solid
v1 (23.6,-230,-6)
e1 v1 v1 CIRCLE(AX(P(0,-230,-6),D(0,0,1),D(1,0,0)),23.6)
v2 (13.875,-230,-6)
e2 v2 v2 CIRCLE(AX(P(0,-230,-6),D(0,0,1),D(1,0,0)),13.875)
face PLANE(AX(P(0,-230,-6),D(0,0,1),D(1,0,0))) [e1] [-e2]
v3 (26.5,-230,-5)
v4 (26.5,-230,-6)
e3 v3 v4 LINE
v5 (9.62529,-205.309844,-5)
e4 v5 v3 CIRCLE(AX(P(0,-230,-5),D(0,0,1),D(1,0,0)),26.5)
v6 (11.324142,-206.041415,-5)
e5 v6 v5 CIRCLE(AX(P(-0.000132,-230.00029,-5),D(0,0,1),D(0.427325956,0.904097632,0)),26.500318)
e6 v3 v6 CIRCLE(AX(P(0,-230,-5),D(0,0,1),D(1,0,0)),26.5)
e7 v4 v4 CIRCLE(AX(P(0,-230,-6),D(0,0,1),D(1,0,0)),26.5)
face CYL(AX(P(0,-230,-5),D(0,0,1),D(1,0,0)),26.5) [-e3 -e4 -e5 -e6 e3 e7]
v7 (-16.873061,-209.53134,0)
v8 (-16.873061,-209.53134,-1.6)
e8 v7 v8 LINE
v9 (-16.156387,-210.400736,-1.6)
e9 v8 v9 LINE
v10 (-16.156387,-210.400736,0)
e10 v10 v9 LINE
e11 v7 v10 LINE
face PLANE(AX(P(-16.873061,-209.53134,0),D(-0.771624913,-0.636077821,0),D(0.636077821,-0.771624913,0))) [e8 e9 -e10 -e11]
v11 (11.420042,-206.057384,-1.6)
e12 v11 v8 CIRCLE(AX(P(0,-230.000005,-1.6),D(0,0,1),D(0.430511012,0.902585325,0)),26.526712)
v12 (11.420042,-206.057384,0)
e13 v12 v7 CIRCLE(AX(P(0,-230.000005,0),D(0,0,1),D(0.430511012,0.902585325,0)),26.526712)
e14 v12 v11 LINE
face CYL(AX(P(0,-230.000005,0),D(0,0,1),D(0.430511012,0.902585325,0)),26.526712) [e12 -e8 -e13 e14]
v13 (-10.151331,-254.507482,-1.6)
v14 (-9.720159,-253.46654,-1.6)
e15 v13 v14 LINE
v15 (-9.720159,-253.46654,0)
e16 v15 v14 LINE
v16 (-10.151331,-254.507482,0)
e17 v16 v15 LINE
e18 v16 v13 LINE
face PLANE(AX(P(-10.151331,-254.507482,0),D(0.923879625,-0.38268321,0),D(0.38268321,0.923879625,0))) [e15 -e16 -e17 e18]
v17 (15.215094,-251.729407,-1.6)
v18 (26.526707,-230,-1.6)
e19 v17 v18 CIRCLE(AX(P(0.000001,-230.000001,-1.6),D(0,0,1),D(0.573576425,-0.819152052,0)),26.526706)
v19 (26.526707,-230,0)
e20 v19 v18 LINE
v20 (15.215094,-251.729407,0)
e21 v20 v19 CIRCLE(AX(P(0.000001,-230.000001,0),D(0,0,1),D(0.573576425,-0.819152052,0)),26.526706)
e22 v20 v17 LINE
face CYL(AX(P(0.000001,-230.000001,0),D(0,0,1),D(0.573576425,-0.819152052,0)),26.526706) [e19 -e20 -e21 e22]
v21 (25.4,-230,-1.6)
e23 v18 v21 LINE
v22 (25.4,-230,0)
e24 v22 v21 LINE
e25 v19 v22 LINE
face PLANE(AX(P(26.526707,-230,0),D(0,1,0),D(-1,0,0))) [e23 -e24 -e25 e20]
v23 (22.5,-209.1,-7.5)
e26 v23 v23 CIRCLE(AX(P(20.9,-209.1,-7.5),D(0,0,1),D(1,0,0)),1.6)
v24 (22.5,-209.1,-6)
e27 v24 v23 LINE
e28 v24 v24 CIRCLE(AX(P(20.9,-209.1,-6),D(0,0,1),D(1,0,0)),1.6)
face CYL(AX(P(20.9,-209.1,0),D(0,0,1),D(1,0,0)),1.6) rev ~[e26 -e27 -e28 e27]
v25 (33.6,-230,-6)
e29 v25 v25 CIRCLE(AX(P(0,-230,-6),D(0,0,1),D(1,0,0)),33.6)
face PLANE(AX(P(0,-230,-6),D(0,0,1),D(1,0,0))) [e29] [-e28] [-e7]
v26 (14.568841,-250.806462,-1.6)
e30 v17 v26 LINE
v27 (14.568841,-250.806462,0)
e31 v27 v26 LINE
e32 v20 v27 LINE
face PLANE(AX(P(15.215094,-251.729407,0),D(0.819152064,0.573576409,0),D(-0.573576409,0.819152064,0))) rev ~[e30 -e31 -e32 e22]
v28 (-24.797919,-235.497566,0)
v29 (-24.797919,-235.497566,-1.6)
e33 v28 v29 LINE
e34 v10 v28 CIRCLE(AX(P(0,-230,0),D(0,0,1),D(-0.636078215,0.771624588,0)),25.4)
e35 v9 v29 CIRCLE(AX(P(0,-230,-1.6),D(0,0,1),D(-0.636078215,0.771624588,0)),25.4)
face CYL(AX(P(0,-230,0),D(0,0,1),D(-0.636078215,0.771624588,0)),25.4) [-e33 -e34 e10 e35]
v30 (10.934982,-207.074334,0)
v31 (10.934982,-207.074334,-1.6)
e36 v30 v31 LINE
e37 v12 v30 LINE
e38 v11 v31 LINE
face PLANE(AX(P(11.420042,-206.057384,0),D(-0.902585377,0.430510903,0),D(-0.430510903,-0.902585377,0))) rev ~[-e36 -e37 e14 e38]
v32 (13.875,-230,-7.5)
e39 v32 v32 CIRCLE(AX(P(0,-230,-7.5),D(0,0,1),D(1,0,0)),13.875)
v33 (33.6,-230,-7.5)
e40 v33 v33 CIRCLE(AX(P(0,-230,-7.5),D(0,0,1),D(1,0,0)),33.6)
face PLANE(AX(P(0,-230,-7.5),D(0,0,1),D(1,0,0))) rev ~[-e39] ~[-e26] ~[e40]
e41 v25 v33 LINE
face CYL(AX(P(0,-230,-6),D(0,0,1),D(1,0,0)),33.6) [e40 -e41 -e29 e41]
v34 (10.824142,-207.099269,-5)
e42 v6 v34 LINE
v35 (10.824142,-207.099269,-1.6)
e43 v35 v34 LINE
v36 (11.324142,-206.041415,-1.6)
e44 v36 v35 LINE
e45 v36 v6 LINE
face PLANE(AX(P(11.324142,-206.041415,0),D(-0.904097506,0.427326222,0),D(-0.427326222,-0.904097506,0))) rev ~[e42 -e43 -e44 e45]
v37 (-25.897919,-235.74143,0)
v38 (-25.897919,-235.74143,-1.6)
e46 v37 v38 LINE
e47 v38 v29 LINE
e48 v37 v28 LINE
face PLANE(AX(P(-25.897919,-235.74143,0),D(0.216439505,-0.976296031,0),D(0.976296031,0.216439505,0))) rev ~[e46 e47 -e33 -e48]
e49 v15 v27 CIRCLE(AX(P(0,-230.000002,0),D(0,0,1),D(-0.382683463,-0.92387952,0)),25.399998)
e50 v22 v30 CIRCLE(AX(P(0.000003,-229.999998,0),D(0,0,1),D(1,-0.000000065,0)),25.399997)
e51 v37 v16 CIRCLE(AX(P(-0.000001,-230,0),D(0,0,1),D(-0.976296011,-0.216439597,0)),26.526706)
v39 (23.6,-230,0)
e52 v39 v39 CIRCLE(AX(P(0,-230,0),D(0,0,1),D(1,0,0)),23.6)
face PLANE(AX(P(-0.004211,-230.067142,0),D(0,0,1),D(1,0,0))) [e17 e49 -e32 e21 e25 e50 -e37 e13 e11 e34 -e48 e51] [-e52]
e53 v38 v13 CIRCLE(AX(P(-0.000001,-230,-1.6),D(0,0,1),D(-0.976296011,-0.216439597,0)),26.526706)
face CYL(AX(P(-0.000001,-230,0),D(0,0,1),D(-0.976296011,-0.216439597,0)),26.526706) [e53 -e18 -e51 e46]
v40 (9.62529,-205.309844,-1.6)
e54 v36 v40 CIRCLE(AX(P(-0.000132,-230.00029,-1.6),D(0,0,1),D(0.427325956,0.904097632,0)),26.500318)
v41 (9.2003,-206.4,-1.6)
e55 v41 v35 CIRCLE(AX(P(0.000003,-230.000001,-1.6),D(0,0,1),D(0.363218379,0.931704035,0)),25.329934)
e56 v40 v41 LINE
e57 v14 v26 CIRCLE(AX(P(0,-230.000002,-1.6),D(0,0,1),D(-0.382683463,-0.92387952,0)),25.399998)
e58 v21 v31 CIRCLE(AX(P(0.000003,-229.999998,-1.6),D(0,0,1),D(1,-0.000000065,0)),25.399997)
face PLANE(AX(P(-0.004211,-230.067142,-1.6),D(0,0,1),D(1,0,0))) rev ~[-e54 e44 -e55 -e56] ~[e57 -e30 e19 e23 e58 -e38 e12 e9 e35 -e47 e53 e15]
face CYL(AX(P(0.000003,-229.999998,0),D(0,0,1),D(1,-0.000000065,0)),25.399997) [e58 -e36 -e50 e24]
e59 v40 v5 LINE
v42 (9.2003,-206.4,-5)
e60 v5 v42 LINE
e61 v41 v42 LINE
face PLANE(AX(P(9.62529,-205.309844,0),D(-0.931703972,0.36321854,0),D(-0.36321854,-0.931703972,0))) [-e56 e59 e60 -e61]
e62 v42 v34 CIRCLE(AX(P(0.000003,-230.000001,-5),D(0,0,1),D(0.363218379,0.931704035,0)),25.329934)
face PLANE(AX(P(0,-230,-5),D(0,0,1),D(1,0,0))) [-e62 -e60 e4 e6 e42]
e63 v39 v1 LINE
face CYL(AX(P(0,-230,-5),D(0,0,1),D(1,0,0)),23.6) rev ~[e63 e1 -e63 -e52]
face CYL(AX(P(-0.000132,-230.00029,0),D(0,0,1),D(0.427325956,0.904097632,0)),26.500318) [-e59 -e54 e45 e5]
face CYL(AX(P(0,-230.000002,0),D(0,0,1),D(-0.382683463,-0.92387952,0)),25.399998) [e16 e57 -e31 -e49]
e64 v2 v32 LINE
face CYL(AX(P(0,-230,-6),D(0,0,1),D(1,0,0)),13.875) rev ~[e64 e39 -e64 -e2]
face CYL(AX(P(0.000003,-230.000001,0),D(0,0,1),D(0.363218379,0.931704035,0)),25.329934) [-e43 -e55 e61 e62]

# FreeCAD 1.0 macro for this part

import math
import FreeCAD as App
import Part
import Sketcher

V = App.Vector
Q = App.Units.Quantity

doc = App.newDocument("Part")
body = doc.addObject("PartDesign::Body", "Body")

# Sketch on XY plane
sketch1 = doc.addObject("Sketcher::SketchObject", "Sketch")
body.addObject(sketch1)
sketch1.AttachmentSupport = (doc.XY_Plane, [""])
sketch1.MapMode = "FlatFace"
sketch1.addGeometry([
    Part.ArcOfCircle(Part.Circle(V(0, 0, 0), V(0, 0, 1), 26.5), math.radians(65), math.radians(129)),  # 0
    Part.LineSegment(V(-16.9, 20.5, 0), V(-16.2, 19.6, 0)),  # 1
    Part.ArcOfCircle(Part.Circle(V(0, 0, 0), V(0, 0, 1), 25.4), math.radians(129), math.radians(192)),  # 2
    Part.LineSegment(V(-24.8, -5.5, 0), V(-25.9, -5.7, 0)),  # 3
    Part.ArcOfCircle(Part.Circle(V(0, 0, 0), V(0, 0, 1), 26.5), math.radians(-168), math.radians(-112)),  # 4
    Part.LineSegment(V(-10.2, -24.5, 0), V(-9.7, -23.5, 0)),  # 5
    Part.ArcOfCircle(Part.Circle(V(0, 0, 0), V(0, 0, 1), 25.4), math.radians(-113), math.radians(-55)),  # 6
    Part.LineSegment(V(14.6, -20.8, 0), V(15.2, -21.7, 0)),  # 7
    Part.ArcOfCircle(Part.Circle(V(0, 0, 0), V(0, 0, 1), 26.5), math.radians(-55), math.radians(0)),  # 8
    Part.LineSegment(V(26.5, 0, 0), V(25.4, 0, 0)),  # 9
    Part.ArcOfCircle(Part.Circle(V(0, 0, 0), V(0, 0, 1), 25.4), math.radians(0), math.radians(65)),  # 10
    Part.LineSegment(V(10.9, 22.9, 0), V(11.4, 23.9, 0)),  # 11
    Part.Circle(V(0, 0, 0), V(0, 0, 1), 23.6),  # 12
], False)
sketch1.addConstraint([
    Sketcher.Constraint("Coincident", 0, 2, 1, 1),
    Sketcher.Constraint("Coincident", 1, 2, 2, 1),
    Sketcher.Constraint("Coincident", 2, 2, 3, 1),
    Sketcher.Constraint("Coincident", 3, 2, 4, 1),
    Sketcher.Constraint("Coincident", 4, 2, 5, 1),
    Sketcher.Constraint("Coincident", 5, 2, 6, 1),
    Sketcher.Constraint("Coincident", 6, 2, 7, 1),
    Sketcher.Constraint("Coincident", 7, 2, 8, 1),
    Sketcher.Constraint("Coincident", 8, 2, 9, 1),
    Sketcher.Constraint("Coincident", 9, 2, 10, 1),
    Sketcher.Constraint("Coincident", 10, 2, 11, 1),
    Sketcher.Constraint("Coincident", 11, 2, 0, 1),
    Sketcher.Constraint("Horizontal", 9),
    Sketcher.Constraint("Coincident", 0, 3, -1, 1),
    Sketcher.Constraint("Coincident", 2, 3, -1, 1),
    Sketcher.Constraint("Coincident", 4, 3, -1, 1),
    Sketcher.Constraint("Coincident", 6, 3, -1, 1),
    Sketcher.Constraint("Coincident", 8, 3, -1, 1),
    Sketcher.Constraint("Coincident", 10, 3, -1, 1),
    Sketcher.Constraint("Coincident", 12, 3, -1, 1),
    Sketcher.Constraint("Equal", 2, 6),
    Sketcher.Constraint("Equal", 4, 8),
    Sketcher.Constraint("Equal", 6, 10),
    Sketcher.Constraint("PointOnObject", 8, 2, -1),
    Sketcher.Constraint("Equal", 1, 3),
    Sketcher.Constraint("Diameter", 12, 47.2),
    Sketcher.Constraint("Radius", 2, 25.4),
    Sketcher.Constraint("Angle", 7, Q("-55.000002 deg")),
    Sketcher.Constraint("Angle", 3, Q("-167.500006 deg")),
    Sketcher.Constraint("Angle", 5, Q("67.500014 deg")),
    Sketcher.Constraint("Angle", 11, Q("64.500012 deg")),
    Sketcher.Constraint("DistanceX", 3, 2, 2, 2, 1.1),
    Sketcher.Constraint("DistanceX", 5, 2, 6, 2, 24.289),
    Sketcher.Constraint("DistanceX", 0, 2, -1, 1, 16.873061),
    Sketcher.Constraint("DistanceX", 2, 2, -1, 1, 24.797919),
    Sketcher.Constraint("DistanceX", 4, 2, -1, 1, 10.151331),
    Sketcher.Constraint("DistanceX", 1, 2, 10, 3, 16.15639),
    Sketcher.Constraint("DistanceX", 10, 3, 10, 2, 10.934979),
])
pad1 = doc.addObject("PartDesign::Pad", "Pad")
body.addObject(pad1)
pad1.Profile = sketch1
pad1.Length = 1.6
pad1.Reversed = True

# Sketch on XY plane
sketch2 = doc.addObject("Sketcher::SketchObject", "Sketch001")
body.addObject(sketch2)
sketch2.AttachmentSupport = (doc.XY_Plane, [""])
sketch2.MapMode = "FlatFace"
sketch2.addGeometry([
    Part.ArcOfCircle(Part.Circle(V(0, 0, 0), V(0, 0, 1), 26.5), math.radians(64.7), math.radians(68.7)),  # 0
    Part.LineSegment(V(9.6, 24.7, 0), V(9.2, 23.6, 0)),  # 1
    Part.ArcOfCircle(Part.Circle(V(0, 0, 0), V(0, 0, 1), 25.3), math.radians(69), math.radians(425)),  # 2
    Part.LineSegment(V(10.8, 22.9, 0), V(11.3, 24, 0)),  # 3
    Part.Circle(V(0, 0, 0), V(0, 0, 1), 23.6),  # 4
], False)
sketch2.addConstraint([
    Sketcher.Constraint("Coincident", 0, 2, 1, 1),
    Sketcher.Constraint("Coincident", 1, 2, 2, 1),
    Sketcher.Constraint("Coincident", 2, 2, 3, 1),
    Sketcher.Constraint("Coincident", 3, 2, 0, 1),
    Sketcher.Constraint("Coincident", 2, 3, -1, 1),
    Sketcher.Constraint("Coincident", 4, 3, -1, 1),
    Sketcher.Constraint("Equal", 1, 3),
    Sketcher.Constraint("Diameter", 4, 47.2),
    Sketcher.Constraint("DistanceY", -1, 1, 1, 2, 23.6),
    Sketcher.Constraint("DistanceX", 2, 2, 3, 2, 0.5),
    Sketcher.Constraint("Radius", 0, 26.500318),
    Sketcher.Constraint("Radius", 2, 25.329934),
    Sketcher.Constraint("DistanceX", 0, 3, -1, 1, 0.000132),
    Sketcher.Constraint("DistanceX", -1, 1, 0, 2, 9.62529),
    Sketcher.Constraint("DistanceY", -1, 1, 2, 2, 22.900731),
])
pad2 = doc.addObject("PartDesign::Pad", "Pad001")
body.addObject(pad2)
pad2.Profile = sketch2
pad2.Length = 5
pad2.Reversed = True

# Sketch on XY plane
sketch3 = doc.addObject("Sketcher::SketchObject", "Sketch002")
body.addObject(sketch3)
sketch3.AttachmentSupport = (doc.XY_Plane, [""])
sketch3.MapMode = "FlatFace"
sketch3.AttachmentOffset = App.Placement(V(0, 0, -5), App.Rotation())
sketch3.addGeometry([
    Part.Circle(V(0, 0, 0), V(0, 0, 1), 26),
    Part.Circle(V(0, 0, 0), V(0, 0, 1), 24),
], False)
sketch3.addConstraint([
    Sketcher.Constraint("Coincident", 0, 3, -1, 1),
    Sketcher.Constraint("Coincident", 1, 3, -1, 1),
    Sketcher.Constraint("Diameter", 0, 53.0),
    Sketcher.Constraint("Diameter", 1, 47.2),
])
pad3 = doc.addObject("PartDesign::Pad", "Pad002")
body.addObject(pad3)
pad3.Profile = sketch3
pad3.Length = 1
pad3.Reversed = True

# Sketch on XY plane
sketch4 = doc.addObject("Sketcher::SketchObject", "Sketch003")
body.addObject(sketch4)
sketch4.AttachmentSupport = (doc.XY_Plane, [""])
sketch4.MapMode = "FlatFace"
sketch4.AttachmentOffset = App.Placement(V(0, 0, -6), App.Rotation())
sketch4.addGeometry([
    Part.Circle(V(0, 0, 0), V(0, 0, 1), 34),
    Part.Circle(V(0, 0, 0), V(0, 0, 1), 14),
], False)
sketch4.addConstraint([
    Sketcher.Constraint("Coincident", 0, 3, -1, 1),
    Sketcher.Constraint("Coincident", 1, 3, -1, 1),
    Sketcher.Constraint("Diameter", 0, 67.2),
    Sketcher.Constraint("Diameter", 1, 27.75),
])
pad4 = doc.addObject("PartDesign::Pad", "Pad003")
body.addObject(pad4)
pad4.Profile = sketch4
pad4.Length = 1.5
pad4.Reversed = True

# Sketch on XY plane
sketch5 = doc.addObject("Sketcher::SketchObject", "Sketch004")
body.addObject(sketch5)
sketch5.AttachmentSupport = (doc.XY_Plane, [""])
sketch5.MapMode = "FlatFace"
sketch5.addGeometry(Part.Circle(V(20.9, 20.9, 0), V(0, 0, 1), 1.6), False)
sketch5.addConstraint([
    Sketcher.Constraint("Diameter", 0, 3.2),
    Sketcher.Constraint("DistanceX", -1, 1, 0, 3, 20.9),
    Sketcher.Constraint("DistanceY", -1, 1, 0, 3, 20.9),
])
pocket1 = doc.addObject("PartDesign::Pocket", "Pocket")
body.addObject(pocket1)
pocket1.Profile = sketch5
pocket1.Type = "ThroughAll"
pocket1.Midplane = True
body2 = doc.addObject("PartDesign::Body", "Body001")
doc.recompute()

body.Placement = App.Placement(V(0, -230, 0), App.Rotation(V(0, 0, 1), 0))
boolean = doc.addObject("PartDesign::Boolean", "Boolean")
body2.addObject(boolean)
boolean.Type = "Fuse"
boolean.addObjects([body])

doc.recompute()
